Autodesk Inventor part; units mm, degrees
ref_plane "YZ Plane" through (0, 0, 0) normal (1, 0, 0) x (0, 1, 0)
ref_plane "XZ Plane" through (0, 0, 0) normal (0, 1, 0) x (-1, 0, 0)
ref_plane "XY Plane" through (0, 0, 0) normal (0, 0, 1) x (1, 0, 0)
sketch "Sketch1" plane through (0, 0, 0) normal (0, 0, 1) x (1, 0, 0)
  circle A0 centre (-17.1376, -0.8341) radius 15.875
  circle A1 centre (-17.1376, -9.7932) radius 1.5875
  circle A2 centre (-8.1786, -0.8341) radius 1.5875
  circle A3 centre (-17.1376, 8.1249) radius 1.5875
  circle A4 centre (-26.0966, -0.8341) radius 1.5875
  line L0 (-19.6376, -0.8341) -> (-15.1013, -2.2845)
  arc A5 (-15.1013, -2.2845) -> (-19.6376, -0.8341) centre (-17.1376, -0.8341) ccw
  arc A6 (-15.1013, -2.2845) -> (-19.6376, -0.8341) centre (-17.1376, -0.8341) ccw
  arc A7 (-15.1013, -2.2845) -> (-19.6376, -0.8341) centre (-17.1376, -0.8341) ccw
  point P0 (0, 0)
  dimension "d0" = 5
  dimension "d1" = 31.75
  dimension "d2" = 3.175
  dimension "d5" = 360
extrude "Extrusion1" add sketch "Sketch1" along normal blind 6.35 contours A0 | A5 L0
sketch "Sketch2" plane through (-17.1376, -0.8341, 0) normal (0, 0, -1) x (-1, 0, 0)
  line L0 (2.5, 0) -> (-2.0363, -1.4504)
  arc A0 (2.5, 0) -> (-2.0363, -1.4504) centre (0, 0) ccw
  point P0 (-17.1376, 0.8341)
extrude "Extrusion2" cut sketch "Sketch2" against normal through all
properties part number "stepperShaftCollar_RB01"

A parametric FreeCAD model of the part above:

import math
import FreeCAD as App
import Part
import Sketcher
Q = App.Units.Quantity

doc = App.newDocument("Part")
params = doc.addObject("Spreadsheet::Sheet", "Params")
for row, (alias, value) in enumerate([
    ("sketch1_diameter", "1.25 in"),
    ("sketch1_diameter2", "0.125 in"),
    ("pad1_length", "0.25 in"),
    ("sketch2_length", "0.1875 in"),
], start=1):
    params.set(f"A{row}", alias)
    params.set(f"B{row}", "=" + value)
    params.setAlias(f"B{row}", alias)

body = doc.addObject("PartDesign::Body", "Body")

# Sketch on XY plane
sketch1 = body.newObject("Sketcher::SketchObject", "Sketch")
sketch1.AttachmentSupport = (doc.getObject("XY_Plane"), [""])
sketch1.MapMode = "FlatFace"
sketch1.addGeometry(Part.Circle(App.Vector(-17.1376, -0.8341, 0), App.Vector(0, 0, 1), 15.875), False)
sketch1.addGeometry(Part.Circle(App.Vector(-17.1376, -9.7932, 0), App.Vector(0, 0, 1), 1.5875), False)
sketch1.addGeometry(Part.Circle(App.Vector(-26.0966, -0.8341, 0), App.Vector(0, 0, 1), 1.5875), False)
sketch1.addGeometry(Part.Circle(App.Vector(-8.1786, -0.8341, 0), App.Vector(0, 0, 1), 1.5875), False)
sketch1.addGeometry(Part.Circle(App.Vector(-17.1376, 8.1249, 0), App.Vector(0, 0, 1), 1.5875), False)
sketch1.addConstraint(Sketcher.Constraint("Equal", 1, 2))
sketch1.addConstraint(Sketcher.Constraint("Equal", 2, 3))
sketch1.addConstraint(Sketcher.Constraint("Equal", 3, 4))
sketch1.addConstraint(Sketcher.Constraint("Horizontal", 0, 3, 2, 3))
sketch1.addConstraint(Sketcher.Constraint("Horizontal", 2, 3, 3, 3))
sketch1.addConstraint(Sketcher.Constraint("Vertical", 0, 3, 1, 3))
sketch1.addConstraint(Sketcher.Constraint("Vertical", 1, 3, 4, 3))
sketch1.addConstraint(Sketcher.Constraint("Diameter", 0, Q("1.25 in")))
sketch1.addConstraint(Sketcher.Constraint("Diameter", 1, Q("0.125 in")))
sketch1.addConstraint(Sketcher.Constraint("DistanceX", 3, 3, -1, 1, Q("0.322 in")))
sketch1.addConstraint(Sketcher.Constraint("DistanceX", 0, 3, -1, 1, Q("0.6747 in")))
sketch1.addConstraint(Sketcher.Constraint("DistanceY", 0, 3, -1, 1, Q("0.834 mm")))
sketch1.addConstraint(Sketcher.Constraint("DistanceY", 1, 3, -1, 1, Q("9.7932 mm")))
sketch1.addConstraint(Sketcher.Constraint("DistanceX", 2, 3, -1, 1, Q("26.0966 mm")))
sketch1.addConstraint(Sketcher.Constraint("DistanceY", -1, 1, 4, 3, Q("8.125 mm")))
sketch1.setExpression("Constraints[7]", "Params.sketch1_diameter")
sketch1.setExpression("Constraints[8]", "Params.sketch1_diameter2")
pad1 = body.newObject("PartDesign::Pad", "Pad")
pad1.Profile = sketch1
pad1.setExpression("Length", "Params.pad1_length")

# Sketch on XY plane
sketch2 = body.newObject("Sketcher::SketchObject", "Sketch001")
sketch2.AttachmentSupport = (doc.getObject("XY_Plane"), [""])
sketch2.MapMode = "FlatFace"
sketch2.addGeometry(Part.LineSegment(App.Vector(-15.1013, -2.2845, 0), App.Vector(-19.6376, -0.8341, 0)), False)
sketch2.addGeometry(Part.ArcOfCircle(Part.Circle(App.Vector(-17.1376, -0.8341, 0), App.Vector(0, 0, 1), 2.5), math.radians(-35.461216), math.radians(180)), False)
sketch2.addConstraint(Sketcher.Constraint("Coincident", 0, 1, 1, 1))
sketch2.addConstraint(Sketcher.Constraint("Coincident", 1, 2, 0, 2))
sketch2.addConstraint(Sketcher.Constraint("Angle", 0, Q("162.2693 deg")))
sketch2.addConstraint(Sketcher.Constraint("Radius", 1, Q("2.5 mm")))
sketch2.addConstraint(Sketcher.Constraint("Distance", 0, Q("0.1875 in")))
sketch2.addConstraint(Sketcher.Constraint("DistanceX", 1, 3, -1, 1, Q("0.6747 in")))
sketch2.addConstraint(Sketcher.Constraint("DistanceY", 1, 3, -1, 1, Q("0.834 mm")))
sketch2.setExpression("Constraints[4]", "Params.sketch2_length")
pocket1 = body.newObject("PartDesign::Pocket", "Pocket")
pocket1.Profile = sketch2
pocket1.Type = "ThroughAll"
pocket1.Reversed = True

doc.recompute()
